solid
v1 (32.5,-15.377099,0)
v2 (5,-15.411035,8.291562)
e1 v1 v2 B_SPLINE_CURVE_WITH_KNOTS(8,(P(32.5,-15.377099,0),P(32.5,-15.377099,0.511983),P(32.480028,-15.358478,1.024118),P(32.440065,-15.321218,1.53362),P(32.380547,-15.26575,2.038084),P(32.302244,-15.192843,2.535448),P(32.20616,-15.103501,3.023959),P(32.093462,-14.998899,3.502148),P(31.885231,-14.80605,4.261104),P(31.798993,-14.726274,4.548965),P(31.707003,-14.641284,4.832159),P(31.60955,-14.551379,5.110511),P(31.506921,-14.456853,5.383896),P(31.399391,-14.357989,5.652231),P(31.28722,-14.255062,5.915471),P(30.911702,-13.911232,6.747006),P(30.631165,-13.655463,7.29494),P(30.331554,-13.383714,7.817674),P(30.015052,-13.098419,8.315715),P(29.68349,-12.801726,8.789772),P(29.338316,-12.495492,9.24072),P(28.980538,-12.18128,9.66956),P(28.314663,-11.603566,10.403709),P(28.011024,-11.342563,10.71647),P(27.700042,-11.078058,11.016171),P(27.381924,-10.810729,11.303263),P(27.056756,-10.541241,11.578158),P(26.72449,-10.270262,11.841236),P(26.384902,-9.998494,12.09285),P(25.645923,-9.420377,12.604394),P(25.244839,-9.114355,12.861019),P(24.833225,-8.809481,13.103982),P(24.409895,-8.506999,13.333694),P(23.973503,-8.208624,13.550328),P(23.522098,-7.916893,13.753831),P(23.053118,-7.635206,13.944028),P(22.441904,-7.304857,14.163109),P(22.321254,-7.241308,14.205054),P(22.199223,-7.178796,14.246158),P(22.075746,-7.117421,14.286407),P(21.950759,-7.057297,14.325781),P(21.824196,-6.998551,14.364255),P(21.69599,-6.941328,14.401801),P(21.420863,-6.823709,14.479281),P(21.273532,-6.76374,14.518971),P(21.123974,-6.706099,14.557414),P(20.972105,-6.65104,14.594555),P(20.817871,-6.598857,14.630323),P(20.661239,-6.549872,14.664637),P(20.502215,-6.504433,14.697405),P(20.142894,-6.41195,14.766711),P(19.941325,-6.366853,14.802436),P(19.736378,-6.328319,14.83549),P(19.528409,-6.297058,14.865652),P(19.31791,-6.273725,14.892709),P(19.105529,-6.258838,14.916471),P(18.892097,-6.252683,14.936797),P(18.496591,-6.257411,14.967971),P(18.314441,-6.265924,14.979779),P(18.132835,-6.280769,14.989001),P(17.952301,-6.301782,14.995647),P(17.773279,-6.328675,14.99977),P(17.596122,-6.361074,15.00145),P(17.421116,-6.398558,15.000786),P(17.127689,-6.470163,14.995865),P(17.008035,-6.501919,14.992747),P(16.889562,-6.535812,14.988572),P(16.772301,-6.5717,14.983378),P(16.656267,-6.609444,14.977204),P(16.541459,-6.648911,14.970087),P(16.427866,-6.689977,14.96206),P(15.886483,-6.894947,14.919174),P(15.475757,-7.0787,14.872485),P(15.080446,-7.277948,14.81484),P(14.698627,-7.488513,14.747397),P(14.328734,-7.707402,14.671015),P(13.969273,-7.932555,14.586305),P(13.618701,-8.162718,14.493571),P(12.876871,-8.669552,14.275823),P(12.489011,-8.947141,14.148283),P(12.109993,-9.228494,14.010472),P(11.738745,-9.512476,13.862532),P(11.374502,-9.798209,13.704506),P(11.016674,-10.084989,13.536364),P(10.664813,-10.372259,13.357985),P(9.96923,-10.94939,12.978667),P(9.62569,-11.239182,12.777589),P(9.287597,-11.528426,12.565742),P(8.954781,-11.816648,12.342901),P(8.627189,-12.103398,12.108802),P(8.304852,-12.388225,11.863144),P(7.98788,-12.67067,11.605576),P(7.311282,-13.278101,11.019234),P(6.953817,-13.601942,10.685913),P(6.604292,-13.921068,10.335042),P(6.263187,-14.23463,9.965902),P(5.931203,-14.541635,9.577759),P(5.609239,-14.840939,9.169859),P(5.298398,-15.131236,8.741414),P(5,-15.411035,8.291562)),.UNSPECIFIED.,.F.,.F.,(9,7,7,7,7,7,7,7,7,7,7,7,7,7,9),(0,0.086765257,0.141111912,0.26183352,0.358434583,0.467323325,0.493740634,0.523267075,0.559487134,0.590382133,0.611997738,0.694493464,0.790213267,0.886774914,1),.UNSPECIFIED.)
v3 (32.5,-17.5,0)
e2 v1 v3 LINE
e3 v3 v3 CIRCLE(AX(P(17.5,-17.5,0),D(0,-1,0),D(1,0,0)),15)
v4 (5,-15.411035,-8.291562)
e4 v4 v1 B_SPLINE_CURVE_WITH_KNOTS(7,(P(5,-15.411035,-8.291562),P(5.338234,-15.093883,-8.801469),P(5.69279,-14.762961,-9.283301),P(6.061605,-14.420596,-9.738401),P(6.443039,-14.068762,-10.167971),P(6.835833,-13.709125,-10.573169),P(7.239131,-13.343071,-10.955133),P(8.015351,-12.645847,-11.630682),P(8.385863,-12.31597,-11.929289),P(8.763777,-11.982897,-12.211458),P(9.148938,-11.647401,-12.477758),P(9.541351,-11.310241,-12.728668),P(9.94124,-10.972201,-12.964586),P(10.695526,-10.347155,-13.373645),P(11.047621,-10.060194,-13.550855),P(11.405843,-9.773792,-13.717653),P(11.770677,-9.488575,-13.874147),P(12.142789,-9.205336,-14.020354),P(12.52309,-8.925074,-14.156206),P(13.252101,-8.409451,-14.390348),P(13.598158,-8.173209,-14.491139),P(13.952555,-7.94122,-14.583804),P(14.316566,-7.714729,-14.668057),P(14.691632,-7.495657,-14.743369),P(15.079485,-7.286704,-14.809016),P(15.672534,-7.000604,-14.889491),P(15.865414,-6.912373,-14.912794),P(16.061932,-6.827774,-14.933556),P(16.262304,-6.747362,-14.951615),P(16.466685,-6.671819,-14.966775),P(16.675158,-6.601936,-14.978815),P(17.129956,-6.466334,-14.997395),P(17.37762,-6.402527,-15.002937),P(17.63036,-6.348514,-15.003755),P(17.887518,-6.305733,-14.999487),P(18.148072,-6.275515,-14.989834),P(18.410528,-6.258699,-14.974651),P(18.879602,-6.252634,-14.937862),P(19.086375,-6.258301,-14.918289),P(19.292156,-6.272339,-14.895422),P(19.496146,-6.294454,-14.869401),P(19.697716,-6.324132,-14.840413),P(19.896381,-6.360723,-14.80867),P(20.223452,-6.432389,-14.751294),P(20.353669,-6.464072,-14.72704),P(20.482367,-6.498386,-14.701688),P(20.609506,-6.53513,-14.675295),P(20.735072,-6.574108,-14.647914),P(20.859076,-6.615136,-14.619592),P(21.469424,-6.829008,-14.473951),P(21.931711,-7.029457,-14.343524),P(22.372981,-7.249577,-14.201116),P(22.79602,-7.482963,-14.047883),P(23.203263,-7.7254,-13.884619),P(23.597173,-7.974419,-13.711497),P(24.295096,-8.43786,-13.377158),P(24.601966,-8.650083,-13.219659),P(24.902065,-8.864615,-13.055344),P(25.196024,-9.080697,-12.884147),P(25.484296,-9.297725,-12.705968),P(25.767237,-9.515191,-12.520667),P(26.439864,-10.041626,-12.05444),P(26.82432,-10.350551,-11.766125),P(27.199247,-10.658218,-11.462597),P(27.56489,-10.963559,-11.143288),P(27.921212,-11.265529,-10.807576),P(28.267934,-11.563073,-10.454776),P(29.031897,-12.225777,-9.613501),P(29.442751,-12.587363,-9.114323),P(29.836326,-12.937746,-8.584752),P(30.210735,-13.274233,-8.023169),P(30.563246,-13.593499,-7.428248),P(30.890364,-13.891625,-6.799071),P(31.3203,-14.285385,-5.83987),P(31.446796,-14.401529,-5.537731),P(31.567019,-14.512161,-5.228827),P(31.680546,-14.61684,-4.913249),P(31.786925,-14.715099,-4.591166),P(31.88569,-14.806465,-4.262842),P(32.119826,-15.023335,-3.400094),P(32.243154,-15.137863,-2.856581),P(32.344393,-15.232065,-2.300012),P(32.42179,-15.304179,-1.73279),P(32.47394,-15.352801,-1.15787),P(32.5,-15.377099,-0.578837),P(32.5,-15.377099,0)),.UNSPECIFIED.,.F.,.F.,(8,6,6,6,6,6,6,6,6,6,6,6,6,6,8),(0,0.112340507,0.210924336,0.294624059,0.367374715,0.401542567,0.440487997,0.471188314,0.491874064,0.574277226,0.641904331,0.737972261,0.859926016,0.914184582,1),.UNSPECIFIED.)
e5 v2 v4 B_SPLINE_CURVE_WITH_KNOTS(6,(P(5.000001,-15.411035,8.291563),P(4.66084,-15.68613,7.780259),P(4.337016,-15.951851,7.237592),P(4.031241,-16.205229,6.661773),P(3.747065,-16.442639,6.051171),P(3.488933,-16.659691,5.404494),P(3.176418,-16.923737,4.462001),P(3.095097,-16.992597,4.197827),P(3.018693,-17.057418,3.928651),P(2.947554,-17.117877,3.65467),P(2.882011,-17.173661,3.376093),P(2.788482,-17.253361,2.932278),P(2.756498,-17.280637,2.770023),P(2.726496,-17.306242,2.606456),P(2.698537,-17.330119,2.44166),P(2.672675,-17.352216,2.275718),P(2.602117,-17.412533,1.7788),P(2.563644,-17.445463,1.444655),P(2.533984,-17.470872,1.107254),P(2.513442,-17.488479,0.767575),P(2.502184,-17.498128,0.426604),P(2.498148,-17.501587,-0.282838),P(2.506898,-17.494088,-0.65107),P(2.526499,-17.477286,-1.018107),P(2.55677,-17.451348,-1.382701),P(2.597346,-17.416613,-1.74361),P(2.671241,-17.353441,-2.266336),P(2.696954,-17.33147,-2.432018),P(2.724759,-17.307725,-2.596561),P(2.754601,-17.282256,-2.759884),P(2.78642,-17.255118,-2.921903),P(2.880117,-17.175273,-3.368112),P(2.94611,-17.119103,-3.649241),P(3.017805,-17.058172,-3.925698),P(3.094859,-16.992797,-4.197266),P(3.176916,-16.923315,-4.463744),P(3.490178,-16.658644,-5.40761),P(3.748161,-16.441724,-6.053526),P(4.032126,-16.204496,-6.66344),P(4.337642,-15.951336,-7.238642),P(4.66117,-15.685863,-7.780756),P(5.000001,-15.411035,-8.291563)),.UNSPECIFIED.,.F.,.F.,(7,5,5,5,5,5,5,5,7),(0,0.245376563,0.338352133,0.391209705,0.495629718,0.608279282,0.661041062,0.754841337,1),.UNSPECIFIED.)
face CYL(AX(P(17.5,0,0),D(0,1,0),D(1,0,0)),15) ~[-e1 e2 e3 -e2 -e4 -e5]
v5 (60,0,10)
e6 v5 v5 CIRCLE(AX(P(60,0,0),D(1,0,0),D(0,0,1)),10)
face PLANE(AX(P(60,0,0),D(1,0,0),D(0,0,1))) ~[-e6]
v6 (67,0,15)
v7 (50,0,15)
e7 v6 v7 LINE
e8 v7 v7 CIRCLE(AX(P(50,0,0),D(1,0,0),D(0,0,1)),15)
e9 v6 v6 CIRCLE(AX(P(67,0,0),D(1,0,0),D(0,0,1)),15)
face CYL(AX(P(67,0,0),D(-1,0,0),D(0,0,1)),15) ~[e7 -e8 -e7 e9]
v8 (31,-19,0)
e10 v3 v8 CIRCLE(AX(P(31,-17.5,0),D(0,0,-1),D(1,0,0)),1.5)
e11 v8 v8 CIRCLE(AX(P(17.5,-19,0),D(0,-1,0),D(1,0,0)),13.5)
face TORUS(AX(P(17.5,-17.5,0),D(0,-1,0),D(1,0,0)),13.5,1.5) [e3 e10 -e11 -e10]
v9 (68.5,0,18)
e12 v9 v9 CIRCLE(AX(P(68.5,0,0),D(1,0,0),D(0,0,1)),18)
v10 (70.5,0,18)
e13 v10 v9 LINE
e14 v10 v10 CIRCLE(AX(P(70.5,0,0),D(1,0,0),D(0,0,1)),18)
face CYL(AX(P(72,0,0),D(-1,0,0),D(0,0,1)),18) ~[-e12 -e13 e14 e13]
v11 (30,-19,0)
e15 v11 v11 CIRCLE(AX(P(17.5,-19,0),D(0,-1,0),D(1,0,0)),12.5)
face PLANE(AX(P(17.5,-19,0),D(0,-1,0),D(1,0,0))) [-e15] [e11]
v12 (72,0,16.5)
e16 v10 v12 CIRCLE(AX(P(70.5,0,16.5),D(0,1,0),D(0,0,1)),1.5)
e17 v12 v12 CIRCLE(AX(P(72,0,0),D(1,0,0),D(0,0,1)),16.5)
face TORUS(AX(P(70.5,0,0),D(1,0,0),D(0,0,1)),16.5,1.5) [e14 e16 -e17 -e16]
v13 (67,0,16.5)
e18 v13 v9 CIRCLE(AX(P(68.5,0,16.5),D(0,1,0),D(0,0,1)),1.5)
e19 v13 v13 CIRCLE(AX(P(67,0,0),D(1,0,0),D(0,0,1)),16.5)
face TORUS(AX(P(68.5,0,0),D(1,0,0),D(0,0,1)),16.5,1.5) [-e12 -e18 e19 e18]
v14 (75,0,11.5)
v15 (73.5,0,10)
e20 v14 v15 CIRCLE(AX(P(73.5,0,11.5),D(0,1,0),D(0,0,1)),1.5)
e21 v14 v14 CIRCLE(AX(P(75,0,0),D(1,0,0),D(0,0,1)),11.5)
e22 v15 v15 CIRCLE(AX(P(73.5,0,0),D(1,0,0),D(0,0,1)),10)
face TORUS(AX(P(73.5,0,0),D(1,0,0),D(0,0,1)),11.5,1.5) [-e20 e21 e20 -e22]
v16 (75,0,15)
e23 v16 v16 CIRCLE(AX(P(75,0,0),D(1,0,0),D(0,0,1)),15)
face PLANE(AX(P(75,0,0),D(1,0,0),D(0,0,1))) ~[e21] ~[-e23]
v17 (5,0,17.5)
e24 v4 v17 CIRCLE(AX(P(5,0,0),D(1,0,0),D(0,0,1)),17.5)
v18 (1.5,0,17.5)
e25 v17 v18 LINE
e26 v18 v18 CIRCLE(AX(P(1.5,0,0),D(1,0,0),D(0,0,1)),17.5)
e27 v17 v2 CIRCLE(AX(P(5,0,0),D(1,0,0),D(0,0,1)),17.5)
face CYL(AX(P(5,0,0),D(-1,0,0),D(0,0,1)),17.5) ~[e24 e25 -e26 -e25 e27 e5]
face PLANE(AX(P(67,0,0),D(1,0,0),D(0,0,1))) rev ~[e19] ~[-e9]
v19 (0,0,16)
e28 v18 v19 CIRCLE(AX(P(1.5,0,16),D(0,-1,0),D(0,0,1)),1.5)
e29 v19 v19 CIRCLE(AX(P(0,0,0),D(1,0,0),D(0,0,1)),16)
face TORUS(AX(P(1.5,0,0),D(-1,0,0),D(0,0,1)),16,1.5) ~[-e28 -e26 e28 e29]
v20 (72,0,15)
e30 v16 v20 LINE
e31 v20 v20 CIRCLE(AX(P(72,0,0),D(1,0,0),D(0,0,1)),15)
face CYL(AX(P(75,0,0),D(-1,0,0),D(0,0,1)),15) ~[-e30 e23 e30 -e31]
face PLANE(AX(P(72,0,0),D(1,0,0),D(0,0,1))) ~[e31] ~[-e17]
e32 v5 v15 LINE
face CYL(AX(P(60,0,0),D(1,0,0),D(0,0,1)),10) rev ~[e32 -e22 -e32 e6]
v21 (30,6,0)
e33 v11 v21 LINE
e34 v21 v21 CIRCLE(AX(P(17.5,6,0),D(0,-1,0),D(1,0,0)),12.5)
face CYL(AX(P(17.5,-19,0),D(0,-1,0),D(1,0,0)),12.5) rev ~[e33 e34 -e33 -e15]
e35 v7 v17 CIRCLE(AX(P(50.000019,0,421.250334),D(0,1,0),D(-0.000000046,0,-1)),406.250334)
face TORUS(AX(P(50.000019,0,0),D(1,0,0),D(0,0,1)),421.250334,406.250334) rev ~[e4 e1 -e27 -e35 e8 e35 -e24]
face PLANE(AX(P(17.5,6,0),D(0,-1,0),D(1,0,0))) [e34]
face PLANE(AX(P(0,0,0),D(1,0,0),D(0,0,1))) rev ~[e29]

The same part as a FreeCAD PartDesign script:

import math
import FreeCAD as App
import Part
import Sketcher

V = App.Vector


def edges_at(feature, points):
    """Names of the edges that pass closest to the given points."""
    edges = feature.Shape.Edges
    near = lambda p: min(range(len(edges)), key=lambda i: edges[i].distToShape(Part.Vertex(*p))[0])
    return sorted({f"Edge{near(p) + 1}" for p in points})

doc = App.newDocument("Part")
body = doc.addObject("PartDesign::Body", "Body")

# Sketch on XZ plane
sketch1 = body.newObject("Sketcher::SketchObject", "Sketch")
sketch1.AttachmentSupport = (doc.getObject("XZ_Plane"), [""])
sketch1.MapMode = "FlatFace"
sketch1.addGeometry([
    Part.LineSegment(V(0, 17.5, 0), V(0, 0, 0)),  # 0
    Part.LineSegment(V(0, 0, 0), V(60, 0, 0)),  # 1
    Part.LineSegment(V(60, 0, 0), V(60, 10, 0)),  # 2
    Part.LineSegment(V(60, 10, 0), V(75, 10, 0)),  # 3
    Part.LineSegment(V(75, 10, 0), V(75, 15, 0)),  # 4
    Part.LineSegment(V(75, 15, 0), V(72, 15, 0)),  # 5
    Part.LineSegment(V(72, 15, 0), V(72, 18, 0)),  # 6
    Part.LineSegment(V(72, 18, 0), V(67, 18, 0)),  # 7
    Part.LineSegment(V(67, 18, 0), V(67, 15, 0)),  # 8
    Part.LineSegment(V(67, 15, 0), V(50, 15, 0)),  # 9
    Part.ArcOfCircle(Part.Circle(V(50.000019, 421.250334, 0), V(0, 0, 1), 406.250334), math.radians(-96.359658), math.radians(-90.000003)),  # 10
    Part.LineSegment(V(5, 17.5, 0), V(0, 17.5, 0)),  # 11
], False)
sketch1.addConstraint([
    Sketcher.Constraint("Coincident", 0, 2, 1, 1),
    Sketcher.Constraint("Coincident", 1, 2, 2, 1),
    Sketcher.Constraint("Coincident", 2, 2, 3, 1),
    Sketcher.Constraint("Coincident", 3, 2, 4, 1),
    Sketcher.Constraint("Coincident", 4, 2, 5, 1),
    Sketcher.Constraint("Coincident", 5, 2, 6, 1),
    Sketcher.Constraint("Coincident", 6, 2, 7, 1),
    Sketcher.Constraint("Coincident", 7, 2, 8, 1),
    Sketcher.Constraint("Coincident", 8, 2, 9, 1),
    Sketcher.Constraint("Tangent", 9, 2, 10, 2),
    Sketcher.Constraint("Coincident", 10, 1, 11, 1),
    Sketcher.Constraint("Coincident", 11, 2, 0, 1),
    Sketcher.Constraint("Vertical", 0),
    Sketcher.Constraint("Horizontal", 1),
    Sketcher.Constraint("Vertical", 2),
    Sketcher.Constraint("Horizontal", 3),
    Sketcher.Constraint("Vertical", 4),
    Sketcher.Constraint("Horizontal", 5),
    Sketcher.Constraint("Vertical", 6),
    Sketcher.Constraint("Horizontal", 7),
    Sketcher.Constraint("Vertical", 8),
    Sketcher.Constraint("Horizontal", 9),
    Sketcher.Constraint("Horizontal", 11),
    Sketcher.Constraint("Coincident", 0, 2, -1, 1),
    Sketcher.Constraint("Horizontal", 5, 2, 8, 2),
    Sketcher.Constraint("Equal", 7, 11),
    Sketcher.Constraint("Equal", 11, 4),
    Sketcher.Constraint("Equal", 5, 6),
    Sketcher.Constraint("DistanceX", 1, 1, 1, 2, 60.0),
    Sketcher.Constraint("DistanceX", 3, 1, 3, 2, 15.0),
    Sketcher.Constraint("DistanceX", 5, 2, 5, 1, 3.0),
    Sketcher.Constraint("DistanceX", 7, 2, 7, 1, 5.0),
    Sketcher.Constraint("DistanceX", 9, 2, 9, 1, 17.0),
    Sketcher.Constraint("DistanceY", 2, 1, 2, 2, 10.0),
    Sketcher.Constraint("DistanceY", 0, 2, 0, 1, 17.5),
])
revolution = body.newObject("PartDesign::Revolution", "Revolution")
revolution.Profile = sketch1
revolution.ReferenceAxis = (sketch1, ["H_Axis"])
revolution.Angle = 360

# Sketch on XZ plane
sketch2 = body.newObject("Sketcher::SketchObject", "Sketch001")
sketch2.AttachmentSupport = (doc.getObject("XZ_Plane"), [""])
sketch2.MapMode = "FlatFace"
sketch2.addGeometry(Part.Circle(V(18, 0, 0), V(0, 0, 1), 15), False)
sketch2.addConstraint([
    Sketcher.Constraint("PointOnObject", 0, 3, -1),
    Sketcher.Constraint("Diameter", 0, 30.0),
    Sketcher.Constraint("DistanceX", -1, 1, 0, 3, 17.5),
])
pad1 = body.newObject("PartDesign::Pad", "Pad")
pad1.Profile = sketch2
pad1.Length = 19

# Sketch on XZ plane
sketch3 = body.newObject("Sketcher::SketchObject", "Sketch002")
sketch3.AttachmentSupport = (doc.getObject("XZ_Plane"), [""])
sketch3.MapMode = "FlatFace"
sketch3.AttachmentOffset = App.Placement(V(0, 0, 19), App.Rotation())
sketch3.addGeometry(Part.Circle(V(18, 0, 0), V(0, 0, 1), 12), False)
sketch3.addConstraint([
    Sketcher.Constraint("PointOnObject", 0, 3, -1),
    Sketcher.Constraint("Diameter", 0, 25.0),
    Sketcher.Constraint("DistanceX", -1, 1, 0, 3, 17.5),
])
pocket1 = body.newObject("PartDesign::Pocket", "Pocket")
pocket1.Profile = sketch3
pocket1.Length = 25
doc.recompute()

fillet = body.newObject("PartDesign::Fillet", "Fillet")
fillet.Base = (pocket1, edges_at(pocket1, [
    (0, 0, -17.5),
    (2.5, -19, 0),
    (67, 0, -18),
    (72, 0, -18),
    (75, 0, -10),
]))
fillet.Radius = 1.5

doc.recompute()
